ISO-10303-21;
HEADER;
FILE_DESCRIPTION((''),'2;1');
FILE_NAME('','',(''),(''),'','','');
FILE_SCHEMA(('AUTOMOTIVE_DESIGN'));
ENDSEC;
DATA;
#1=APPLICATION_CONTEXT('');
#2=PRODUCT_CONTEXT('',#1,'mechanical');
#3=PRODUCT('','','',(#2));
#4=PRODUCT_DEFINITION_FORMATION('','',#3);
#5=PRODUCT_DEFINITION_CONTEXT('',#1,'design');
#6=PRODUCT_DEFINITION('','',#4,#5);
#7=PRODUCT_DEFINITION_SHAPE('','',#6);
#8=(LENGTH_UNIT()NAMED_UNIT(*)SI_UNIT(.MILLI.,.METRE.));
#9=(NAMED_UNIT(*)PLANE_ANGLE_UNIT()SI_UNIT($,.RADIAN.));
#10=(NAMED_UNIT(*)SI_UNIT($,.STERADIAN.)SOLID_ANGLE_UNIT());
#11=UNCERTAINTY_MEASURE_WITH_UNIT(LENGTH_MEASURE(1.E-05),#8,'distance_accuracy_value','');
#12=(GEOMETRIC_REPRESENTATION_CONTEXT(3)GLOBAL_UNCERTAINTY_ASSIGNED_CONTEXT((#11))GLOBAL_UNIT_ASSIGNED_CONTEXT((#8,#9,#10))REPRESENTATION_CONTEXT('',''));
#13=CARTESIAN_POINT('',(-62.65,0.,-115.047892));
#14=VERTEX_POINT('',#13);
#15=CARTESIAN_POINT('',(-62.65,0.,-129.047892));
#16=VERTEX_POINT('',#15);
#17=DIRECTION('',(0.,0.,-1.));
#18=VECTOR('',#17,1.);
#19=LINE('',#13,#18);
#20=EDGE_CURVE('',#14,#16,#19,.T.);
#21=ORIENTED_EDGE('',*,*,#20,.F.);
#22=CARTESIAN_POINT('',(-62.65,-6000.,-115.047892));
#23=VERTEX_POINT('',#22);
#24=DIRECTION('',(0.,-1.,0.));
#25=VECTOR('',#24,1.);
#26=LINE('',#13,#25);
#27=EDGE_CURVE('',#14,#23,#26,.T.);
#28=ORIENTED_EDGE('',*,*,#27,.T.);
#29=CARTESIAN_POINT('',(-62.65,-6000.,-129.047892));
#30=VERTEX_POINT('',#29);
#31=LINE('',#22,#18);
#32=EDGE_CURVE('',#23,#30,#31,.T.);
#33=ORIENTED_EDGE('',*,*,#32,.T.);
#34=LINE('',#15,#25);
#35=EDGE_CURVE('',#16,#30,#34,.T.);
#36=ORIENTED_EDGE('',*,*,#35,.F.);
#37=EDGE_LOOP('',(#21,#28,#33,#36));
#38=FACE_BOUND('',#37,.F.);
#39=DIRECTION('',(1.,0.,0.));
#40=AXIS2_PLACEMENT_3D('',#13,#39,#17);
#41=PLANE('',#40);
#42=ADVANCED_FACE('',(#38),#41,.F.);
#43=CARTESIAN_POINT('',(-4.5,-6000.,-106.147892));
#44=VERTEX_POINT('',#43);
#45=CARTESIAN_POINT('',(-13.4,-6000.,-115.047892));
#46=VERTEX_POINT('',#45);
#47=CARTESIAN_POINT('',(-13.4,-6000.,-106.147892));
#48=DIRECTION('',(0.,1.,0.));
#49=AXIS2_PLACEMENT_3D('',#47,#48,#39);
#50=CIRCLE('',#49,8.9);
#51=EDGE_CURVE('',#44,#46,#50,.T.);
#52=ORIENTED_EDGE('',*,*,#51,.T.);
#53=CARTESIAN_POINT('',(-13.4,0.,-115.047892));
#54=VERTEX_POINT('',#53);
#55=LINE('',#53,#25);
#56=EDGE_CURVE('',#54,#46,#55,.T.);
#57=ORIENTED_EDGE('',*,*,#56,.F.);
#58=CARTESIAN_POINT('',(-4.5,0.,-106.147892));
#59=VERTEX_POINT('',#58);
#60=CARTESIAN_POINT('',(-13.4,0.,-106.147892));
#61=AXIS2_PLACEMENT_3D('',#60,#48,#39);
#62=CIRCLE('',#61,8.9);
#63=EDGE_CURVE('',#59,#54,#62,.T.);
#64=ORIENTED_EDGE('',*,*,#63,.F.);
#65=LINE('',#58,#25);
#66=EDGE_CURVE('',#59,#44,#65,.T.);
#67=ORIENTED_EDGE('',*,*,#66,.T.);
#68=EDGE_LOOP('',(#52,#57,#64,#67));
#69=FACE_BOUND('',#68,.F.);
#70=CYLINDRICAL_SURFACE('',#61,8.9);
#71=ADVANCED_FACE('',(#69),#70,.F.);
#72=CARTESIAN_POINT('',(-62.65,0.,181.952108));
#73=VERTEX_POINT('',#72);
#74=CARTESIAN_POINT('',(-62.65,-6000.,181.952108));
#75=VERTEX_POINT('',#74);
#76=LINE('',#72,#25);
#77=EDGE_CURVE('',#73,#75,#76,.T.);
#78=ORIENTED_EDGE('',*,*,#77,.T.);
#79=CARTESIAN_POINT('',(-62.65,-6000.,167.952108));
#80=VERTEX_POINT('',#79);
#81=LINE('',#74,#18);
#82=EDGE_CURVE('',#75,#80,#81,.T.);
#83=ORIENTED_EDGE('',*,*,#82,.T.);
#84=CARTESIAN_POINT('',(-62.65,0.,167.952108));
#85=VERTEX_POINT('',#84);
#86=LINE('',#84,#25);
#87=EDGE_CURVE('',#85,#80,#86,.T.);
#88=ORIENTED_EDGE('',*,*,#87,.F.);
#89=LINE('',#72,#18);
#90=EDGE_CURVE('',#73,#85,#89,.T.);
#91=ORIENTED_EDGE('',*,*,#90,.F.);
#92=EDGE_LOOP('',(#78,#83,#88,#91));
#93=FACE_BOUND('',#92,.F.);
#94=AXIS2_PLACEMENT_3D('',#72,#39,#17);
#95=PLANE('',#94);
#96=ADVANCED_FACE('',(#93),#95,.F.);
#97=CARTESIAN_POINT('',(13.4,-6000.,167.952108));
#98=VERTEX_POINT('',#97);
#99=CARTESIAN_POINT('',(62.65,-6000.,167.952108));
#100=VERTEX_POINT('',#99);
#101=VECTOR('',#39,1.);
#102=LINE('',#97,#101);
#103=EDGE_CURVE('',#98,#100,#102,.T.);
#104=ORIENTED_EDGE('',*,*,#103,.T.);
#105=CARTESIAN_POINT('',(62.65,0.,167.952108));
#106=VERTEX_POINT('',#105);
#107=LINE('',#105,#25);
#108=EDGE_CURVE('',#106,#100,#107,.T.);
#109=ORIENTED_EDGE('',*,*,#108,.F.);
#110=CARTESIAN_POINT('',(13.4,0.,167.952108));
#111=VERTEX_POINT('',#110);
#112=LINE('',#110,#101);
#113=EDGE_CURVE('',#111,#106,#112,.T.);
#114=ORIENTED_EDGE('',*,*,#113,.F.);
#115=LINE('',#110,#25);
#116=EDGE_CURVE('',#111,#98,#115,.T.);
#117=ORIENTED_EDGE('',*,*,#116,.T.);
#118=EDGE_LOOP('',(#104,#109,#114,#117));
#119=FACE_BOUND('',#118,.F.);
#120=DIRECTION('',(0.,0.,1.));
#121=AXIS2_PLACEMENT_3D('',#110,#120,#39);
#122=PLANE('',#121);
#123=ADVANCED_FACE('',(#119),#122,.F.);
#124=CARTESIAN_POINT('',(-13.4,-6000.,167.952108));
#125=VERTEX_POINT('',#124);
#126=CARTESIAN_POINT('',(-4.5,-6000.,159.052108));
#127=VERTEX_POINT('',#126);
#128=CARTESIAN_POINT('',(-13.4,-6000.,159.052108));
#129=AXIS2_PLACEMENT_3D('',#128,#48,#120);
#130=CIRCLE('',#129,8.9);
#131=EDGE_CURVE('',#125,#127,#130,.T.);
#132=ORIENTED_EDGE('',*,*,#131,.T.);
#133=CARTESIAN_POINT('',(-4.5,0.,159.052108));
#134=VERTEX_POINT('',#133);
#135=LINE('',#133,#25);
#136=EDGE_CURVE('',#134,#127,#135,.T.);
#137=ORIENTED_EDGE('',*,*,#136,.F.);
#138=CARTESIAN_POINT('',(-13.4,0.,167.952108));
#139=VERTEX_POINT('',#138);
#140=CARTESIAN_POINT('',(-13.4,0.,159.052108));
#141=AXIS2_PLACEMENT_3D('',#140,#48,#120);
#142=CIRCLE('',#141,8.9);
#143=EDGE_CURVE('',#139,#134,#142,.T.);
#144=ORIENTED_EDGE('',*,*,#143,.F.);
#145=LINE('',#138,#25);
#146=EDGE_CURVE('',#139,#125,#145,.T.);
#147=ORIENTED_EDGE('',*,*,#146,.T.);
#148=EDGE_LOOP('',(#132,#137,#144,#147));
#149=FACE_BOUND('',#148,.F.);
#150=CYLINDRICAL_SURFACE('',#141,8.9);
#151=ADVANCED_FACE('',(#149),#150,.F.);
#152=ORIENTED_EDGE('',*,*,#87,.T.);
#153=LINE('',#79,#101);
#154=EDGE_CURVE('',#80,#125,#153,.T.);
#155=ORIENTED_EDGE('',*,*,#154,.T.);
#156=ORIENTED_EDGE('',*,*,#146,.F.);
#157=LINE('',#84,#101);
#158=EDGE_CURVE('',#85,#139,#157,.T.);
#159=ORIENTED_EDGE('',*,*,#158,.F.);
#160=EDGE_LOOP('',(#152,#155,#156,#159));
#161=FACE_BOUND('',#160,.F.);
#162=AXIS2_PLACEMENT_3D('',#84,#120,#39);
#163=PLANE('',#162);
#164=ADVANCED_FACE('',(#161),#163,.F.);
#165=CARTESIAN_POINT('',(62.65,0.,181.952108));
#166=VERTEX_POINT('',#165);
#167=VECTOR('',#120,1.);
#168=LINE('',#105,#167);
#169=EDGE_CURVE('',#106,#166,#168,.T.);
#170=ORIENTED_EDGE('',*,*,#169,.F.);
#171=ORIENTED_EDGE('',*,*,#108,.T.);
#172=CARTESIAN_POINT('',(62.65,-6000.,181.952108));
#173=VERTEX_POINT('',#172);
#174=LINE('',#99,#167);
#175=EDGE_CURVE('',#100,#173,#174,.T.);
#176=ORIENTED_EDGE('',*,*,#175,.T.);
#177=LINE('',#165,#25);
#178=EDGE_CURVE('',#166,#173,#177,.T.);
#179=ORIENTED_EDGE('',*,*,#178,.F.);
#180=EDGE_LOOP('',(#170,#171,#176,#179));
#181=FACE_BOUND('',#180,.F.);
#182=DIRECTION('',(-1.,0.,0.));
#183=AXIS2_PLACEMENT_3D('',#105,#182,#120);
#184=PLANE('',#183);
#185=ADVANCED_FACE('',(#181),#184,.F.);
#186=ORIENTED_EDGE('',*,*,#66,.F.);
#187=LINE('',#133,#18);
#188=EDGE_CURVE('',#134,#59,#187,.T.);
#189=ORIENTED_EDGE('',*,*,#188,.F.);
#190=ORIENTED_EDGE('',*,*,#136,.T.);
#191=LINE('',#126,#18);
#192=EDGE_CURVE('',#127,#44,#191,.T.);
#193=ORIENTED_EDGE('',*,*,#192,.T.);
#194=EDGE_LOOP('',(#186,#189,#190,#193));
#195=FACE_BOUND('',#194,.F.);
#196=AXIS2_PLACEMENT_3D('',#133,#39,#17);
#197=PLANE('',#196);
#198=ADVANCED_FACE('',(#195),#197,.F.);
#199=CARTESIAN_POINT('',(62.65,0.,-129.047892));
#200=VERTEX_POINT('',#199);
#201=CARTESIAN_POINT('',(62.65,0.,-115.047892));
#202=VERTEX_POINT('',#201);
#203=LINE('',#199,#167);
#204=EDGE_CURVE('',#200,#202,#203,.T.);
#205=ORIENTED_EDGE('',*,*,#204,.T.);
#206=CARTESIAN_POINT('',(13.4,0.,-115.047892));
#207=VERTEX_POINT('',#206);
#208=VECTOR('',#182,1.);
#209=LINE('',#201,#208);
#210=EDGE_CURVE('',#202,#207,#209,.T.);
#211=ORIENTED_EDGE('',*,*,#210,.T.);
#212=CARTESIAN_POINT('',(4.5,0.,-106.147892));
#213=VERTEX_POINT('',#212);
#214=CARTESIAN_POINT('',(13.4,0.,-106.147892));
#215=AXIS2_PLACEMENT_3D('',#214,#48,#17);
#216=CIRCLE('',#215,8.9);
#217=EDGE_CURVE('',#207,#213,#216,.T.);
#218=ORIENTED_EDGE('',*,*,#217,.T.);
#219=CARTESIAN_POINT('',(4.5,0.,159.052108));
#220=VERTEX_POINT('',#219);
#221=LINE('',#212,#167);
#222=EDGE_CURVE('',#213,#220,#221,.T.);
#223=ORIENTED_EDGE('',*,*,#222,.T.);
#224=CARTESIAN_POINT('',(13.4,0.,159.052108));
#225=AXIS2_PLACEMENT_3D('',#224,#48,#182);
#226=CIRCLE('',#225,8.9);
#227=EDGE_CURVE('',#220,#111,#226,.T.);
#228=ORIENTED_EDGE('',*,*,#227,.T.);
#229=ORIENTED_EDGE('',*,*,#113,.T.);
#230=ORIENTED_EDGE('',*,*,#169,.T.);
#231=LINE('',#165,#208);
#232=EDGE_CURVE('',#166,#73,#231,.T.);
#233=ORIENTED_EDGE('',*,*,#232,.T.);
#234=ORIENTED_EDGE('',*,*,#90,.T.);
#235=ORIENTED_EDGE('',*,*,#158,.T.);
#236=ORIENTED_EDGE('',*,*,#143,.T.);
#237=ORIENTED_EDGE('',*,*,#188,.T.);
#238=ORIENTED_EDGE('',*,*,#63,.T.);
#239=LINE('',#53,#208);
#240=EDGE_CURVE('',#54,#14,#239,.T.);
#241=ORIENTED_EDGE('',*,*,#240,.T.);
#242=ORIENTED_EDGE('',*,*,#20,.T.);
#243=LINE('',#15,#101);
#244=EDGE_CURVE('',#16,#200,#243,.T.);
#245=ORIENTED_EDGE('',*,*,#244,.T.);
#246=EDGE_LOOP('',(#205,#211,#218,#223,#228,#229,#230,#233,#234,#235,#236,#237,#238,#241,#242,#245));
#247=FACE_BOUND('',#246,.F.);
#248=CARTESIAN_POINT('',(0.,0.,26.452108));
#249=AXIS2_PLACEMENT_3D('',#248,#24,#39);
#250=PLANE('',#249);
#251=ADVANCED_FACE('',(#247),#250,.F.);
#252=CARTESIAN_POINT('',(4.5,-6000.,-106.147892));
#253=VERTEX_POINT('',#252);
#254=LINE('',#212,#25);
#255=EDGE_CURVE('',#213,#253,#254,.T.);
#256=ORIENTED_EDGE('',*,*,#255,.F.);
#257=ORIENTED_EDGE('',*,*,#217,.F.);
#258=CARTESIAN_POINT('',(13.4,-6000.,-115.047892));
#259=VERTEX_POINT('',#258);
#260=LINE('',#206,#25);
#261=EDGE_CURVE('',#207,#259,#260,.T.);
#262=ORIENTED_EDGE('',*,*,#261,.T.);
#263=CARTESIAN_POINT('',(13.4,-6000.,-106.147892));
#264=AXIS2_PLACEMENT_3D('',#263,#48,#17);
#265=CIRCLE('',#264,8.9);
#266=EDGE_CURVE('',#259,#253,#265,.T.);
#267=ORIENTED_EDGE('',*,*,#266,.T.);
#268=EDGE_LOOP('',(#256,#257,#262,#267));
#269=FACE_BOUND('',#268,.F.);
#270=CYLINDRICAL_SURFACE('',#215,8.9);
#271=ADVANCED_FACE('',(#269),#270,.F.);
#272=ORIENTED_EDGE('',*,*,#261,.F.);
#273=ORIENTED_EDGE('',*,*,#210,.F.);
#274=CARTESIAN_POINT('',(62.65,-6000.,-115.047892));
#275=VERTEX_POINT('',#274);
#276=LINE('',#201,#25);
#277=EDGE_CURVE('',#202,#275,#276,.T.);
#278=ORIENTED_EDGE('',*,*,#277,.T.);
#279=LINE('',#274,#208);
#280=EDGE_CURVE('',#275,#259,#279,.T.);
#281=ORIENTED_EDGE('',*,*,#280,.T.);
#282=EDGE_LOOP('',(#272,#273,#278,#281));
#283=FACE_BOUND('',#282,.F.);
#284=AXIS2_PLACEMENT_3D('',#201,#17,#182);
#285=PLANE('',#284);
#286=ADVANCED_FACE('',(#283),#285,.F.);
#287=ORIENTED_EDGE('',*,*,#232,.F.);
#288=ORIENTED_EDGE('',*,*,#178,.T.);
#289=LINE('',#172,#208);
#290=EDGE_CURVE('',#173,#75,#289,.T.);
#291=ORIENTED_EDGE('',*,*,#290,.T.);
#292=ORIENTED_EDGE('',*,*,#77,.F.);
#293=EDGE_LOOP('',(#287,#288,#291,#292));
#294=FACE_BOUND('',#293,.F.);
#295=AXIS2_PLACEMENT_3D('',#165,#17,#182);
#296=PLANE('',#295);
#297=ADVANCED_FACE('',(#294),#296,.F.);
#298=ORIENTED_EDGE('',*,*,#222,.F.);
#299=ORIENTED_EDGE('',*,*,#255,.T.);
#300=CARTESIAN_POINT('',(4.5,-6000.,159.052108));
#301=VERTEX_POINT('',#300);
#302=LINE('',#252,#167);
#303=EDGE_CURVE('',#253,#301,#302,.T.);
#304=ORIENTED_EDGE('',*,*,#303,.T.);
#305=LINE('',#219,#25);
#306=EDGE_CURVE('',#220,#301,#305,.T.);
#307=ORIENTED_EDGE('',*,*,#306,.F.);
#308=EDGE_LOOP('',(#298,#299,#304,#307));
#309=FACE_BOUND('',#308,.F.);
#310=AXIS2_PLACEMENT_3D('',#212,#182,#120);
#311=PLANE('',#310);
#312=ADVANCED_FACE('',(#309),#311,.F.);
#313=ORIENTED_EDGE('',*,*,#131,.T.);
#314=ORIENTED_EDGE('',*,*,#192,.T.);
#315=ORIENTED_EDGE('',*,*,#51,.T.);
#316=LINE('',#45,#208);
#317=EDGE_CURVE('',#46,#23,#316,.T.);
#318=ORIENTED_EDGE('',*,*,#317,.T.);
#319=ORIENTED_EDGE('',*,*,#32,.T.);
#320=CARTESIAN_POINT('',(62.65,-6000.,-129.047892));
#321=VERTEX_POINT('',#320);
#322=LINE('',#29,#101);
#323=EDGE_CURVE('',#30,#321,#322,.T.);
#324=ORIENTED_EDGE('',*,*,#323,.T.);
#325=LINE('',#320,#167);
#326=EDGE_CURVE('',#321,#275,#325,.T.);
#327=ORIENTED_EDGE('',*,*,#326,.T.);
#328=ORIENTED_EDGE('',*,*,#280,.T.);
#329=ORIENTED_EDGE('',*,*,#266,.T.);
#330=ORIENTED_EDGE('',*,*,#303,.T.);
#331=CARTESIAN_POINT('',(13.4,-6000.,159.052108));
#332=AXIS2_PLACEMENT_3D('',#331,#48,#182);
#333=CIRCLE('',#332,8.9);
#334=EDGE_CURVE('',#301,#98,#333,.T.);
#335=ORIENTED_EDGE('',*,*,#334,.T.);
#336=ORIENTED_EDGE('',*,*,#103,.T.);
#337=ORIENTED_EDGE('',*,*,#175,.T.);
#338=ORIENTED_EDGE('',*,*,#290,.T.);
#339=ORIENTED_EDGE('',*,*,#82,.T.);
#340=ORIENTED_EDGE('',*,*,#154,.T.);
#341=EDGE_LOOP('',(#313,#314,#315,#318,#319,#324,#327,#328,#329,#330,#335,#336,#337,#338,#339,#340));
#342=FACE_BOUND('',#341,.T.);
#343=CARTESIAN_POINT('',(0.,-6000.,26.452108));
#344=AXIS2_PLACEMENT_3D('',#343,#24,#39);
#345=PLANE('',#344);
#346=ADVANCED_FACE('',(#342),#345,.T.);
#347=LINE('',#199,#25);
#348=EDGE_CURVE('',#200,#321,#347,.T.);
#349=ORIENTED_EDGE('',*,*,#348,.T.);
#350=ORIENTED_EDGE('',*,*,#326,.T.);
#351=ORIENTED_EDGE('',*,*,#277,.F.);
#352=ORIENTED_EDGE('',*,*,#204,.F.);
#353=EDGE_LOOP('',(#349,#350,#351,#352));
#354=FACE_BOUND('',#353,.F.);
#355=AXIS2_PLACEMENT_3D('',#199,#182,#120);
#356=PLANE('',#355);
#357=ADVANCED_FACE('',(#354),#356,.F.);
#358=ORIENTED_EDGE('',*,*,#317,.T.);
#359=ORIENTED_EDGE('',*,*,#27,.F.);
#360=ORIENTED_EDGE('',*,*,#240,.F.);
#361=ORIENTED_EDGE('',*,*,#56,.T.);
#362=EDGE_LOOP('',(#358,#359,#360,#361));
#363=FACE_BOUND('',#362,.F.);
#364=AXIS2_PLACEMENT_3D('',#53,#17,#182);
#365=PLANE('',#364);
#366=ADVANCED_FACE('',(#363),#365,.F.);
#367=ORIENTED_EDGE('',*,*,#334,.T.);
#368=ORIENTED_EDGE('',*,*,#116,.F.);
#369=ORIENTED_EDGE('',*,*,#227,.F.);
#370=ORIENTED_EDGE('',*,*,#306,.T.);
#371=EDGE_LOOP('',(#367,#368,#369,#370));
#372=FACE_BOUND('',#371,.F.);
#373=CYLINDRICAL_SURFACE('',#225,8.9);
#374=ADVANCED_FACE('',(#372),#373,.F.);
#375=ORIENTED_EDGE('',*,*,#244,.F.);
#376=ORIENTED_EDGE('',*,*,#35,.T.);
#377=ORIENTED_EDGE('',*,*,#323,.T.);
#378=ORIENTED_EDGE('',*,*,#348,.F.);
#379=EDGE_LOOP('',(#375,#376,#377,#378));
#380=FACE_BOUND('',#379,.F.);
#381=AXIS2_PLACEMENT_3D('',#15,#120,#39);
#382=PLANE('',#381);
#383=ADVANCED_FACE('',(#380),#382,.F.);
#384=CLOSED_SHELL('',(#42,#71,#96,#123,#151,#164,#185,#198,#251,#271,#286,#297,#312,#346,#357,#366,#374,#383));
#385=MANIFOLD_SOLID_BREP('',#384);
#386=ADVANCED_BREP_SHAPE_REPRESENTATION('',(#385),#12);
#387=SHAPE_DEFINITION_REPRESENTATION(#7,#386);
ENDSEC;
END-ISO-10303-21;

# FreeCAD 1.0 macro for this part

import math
import FreeCAD as App
import Part
import Sketcher
from FreeCAD import Vector
Q = App.Units.Quantity

doc = App.newDocument("Part")
body = doc.addObject("PartDesign::Body", "Body")

# Sketch on XZ plane
sketch1 = body.newObject("Sketcher::SketchObject", "Sketch")
sketch1.AttachmentSupport = (doc.getObject("XZ_Plane"), [""])
sketch1.MapMode = "FlatFace"
sketch1.addGeometry(Part.LineSegment(Vector(63, 182, 0), Vector(-63, 182, 0)), False)
sketch1.addGeometry(Part.LineSegment(Vector(-63, 182, 0), Vector(-63, 168, 0)), False)
sketch1.addGeometry(Part.LineSegment(Vector(-63, 168, 0), Vector(-13, 168, 0)), False)
sketch1.addGeometry(Part.ArcOfCircle(Part.Circle(Vector(-13, 159, 0), Vector(0, 0, 1), 9), math.radians(0), math.radians(90)), False)
sketch1.addGeometry(Part.LineSegment(Vector(-4, 159, 0), Vector(-4, -106, 0)), False)
sketch1.addGeometry(Part.ArcOfCircle(Part.Circle(Vector(-13, -106, 0), Vector(0, 0, 1), 9), math.radians(-90), math.radians(0)), False)
sketch1.addGeometry(Part.LineSegment(Vector(-13, -115, 0), Vector(-63, -115, 0)), False)
sketch1.addGeometry(Part.LineSegment(Vector(-63, -115, 0), Vector(-63, -129, 0)), False)
sketch1.addGeometry(Part.LineSegment(Vector(-63, -129, 0), Vector(63, -129, 0)), False)
sketch1.addGeometry(Part.LineSegment(Vector(63, -129, 0), Vector(63, -115, 0)), False)
sketch1.addGeometry(Part.LineSegment(Vector(63, -115, 0), Vector(13, -115, 0)), False)
sketch1.addGeometry(Part.ArcOfCircle(Part.Circle(Vector(13, -106, 0), Vector(0, 0, 1), 9), math.radians(180), math.radians(270)), False)
sketch1.addGeometry(Part.LineSegment(Vector(4, -106, 0), Vector(4, 159, 0)), False)
sketch1.addGeometry(Part.ArcOfCircle(Part.Circle(Vector(13, 159, 0), Vector(0, 0, 1), 9), math.radians(90), math.radians(180)), False)
sketch1.addGeometry(Part.LineSegment(Vector(13, 168, 0), Vector(63, 168, 0)), False)
sketch1.addGeometry(Part.LineSegment(Vector(63, 168, 0), Vector(63, 182, 0)), False)
sketch1.addConstraint(Sketcher.Constraint("Coincident", 0, 2, 1, 1))
sketch1.addConstraint(Sketcher.Constraint("Coincident", 1, 2, 2, 1))
sketch1.addConstraint(Sketcher.Constraint("Tangent", 2, 2, 3, 2))
sketch1.addConstraint(Sketcher.Constraint("Tangent", 3, 1, 4, 1))
sketch1.addConstraint(Sketcher.Constraint("Tangent", 4, 2, 5, 2))
sketch1.addConstraint(Sketcher.Constraint("Tangent", 5, 1, 6, 1))
sketch1.addConstraint(Sketcher.Constraint("Coincident", 6, 2, 7, 1))
sketch1.addConstraint(Sketcher.Constraint("Coincident", 7, 2, 8, 1))
sketch1.addConstraint(Sketcher.Constraint("Coincident", 8, 2, 9, 1))
sketch1.addConstraint(Sketcher.Constraint("Coincident", 9, 2, 10, 1))
sketch1.addConstraint(Sketcher.Constraint("Tangent", 10, 2, 11, 2))
sketch1.addConstraint(Sketcher.Constraint("Tangent", 11, 1, 12, 1))
sketch1.addConstraint(Sketcher.Constraint("Tangent", 12, 2, 13, 2))
sketch1.addConstraint(Sketcher.Constraint("Tangent", 13, 1, 14, 1))
sketch1.addConstraint(Sketcher.Constraint("Coincident", 14, 2, 15, 1))
sketch1.addConstraint(Sketcher.Constraint("Coincident", 15, 2, 0, 1))
sketch1.addConstraint(Sketcher.Constraint("Horizontal", 0))
sketch1.addConstraint(Sketcher.Constraint("Vertical", 1))
sketch1.addConstraint(Sketcher.Constraint("Horizontal", 2))
sketch1.addConstraint(Sketcher.Constraint("Vertical", 4))
sketch1.addConstraint(Sketcher.Constraint("Horizontal", 6))
sketch1.addConstraint(Sketcher.Constraint("Vertical", 7))
sketch1.addConstraint(Sketcher.Constraint("Horizontal", 8))
sketch1.addConstraint(Sketcher.Constraint("Vertical", 9))
sketch1.addConstraint(Sketcher.Constraint("Horizontal", 10))
sketch1.addConstraint(Sketcher.Constraint("Vertical", 12))
sketch1.addConstraint(Sketcher.Constraint("Horizontal", 14))
sketch1.addConstraint(Sketcher.Constraint("Vertical", 15))
sketch1.addConstraint(Sketcher.Constraint("Equal", 3, 5))
sketch1.addConstraint(Sketcher.Constraint("Equal", 5, 11))
sketch1.addConstraint(Sketcher.Constraint("Equal", 11, 13))
sketch1.addConstraint(Sketcher.Constraint("Symmetric", 5, 3, 11, 3, -2))
sketch1.addConstraint(Sketcher.Constraint("Symmetric", 1, 2, 14, 2, -2))
sketch1.addConstraint(Sketcher.Constraint("Vertical", 1, 2, 6, 2))
sketch1.addConstraint(Sketcher.Constraint("Vertical", 9, 2, 14, 2))
sketch1.addConstraint(Sketcher.Constraint("Equal", 1, 7))
sketch1.addConstraint(Sketcher.Constraint("Radius", 3, Q("8.9 mm")))
sketch1.addConstraint(Sketcher.Constraint("DistanceY", 1, 2, 1, 1, Q("14 mm")))
sketch1.addConstraint(Sketcher.Constraint("DistanceX", 0, 2, 0, 1, Q("125.3 mm")))
sketch1.addConstraint(Sketcher.Constraint("DistanceY", 4, 2, 4, 1, Q("265.2 mm")))
sketch1.addConstraint(Sketcher.Constraint("DistanceX", 4, 2, 11, 1, Q("9 mm")))
sketch1.addConstraint(Sketcher.Constraint("DistanceY", -1, 1, 3, 3, Q("159.052108 mm")))
pad1 = body.newObject("PartDesign::Pad", "Pad")
pad1.Profile = sketch1
pad1.Length = 6000

doc.recompute()
